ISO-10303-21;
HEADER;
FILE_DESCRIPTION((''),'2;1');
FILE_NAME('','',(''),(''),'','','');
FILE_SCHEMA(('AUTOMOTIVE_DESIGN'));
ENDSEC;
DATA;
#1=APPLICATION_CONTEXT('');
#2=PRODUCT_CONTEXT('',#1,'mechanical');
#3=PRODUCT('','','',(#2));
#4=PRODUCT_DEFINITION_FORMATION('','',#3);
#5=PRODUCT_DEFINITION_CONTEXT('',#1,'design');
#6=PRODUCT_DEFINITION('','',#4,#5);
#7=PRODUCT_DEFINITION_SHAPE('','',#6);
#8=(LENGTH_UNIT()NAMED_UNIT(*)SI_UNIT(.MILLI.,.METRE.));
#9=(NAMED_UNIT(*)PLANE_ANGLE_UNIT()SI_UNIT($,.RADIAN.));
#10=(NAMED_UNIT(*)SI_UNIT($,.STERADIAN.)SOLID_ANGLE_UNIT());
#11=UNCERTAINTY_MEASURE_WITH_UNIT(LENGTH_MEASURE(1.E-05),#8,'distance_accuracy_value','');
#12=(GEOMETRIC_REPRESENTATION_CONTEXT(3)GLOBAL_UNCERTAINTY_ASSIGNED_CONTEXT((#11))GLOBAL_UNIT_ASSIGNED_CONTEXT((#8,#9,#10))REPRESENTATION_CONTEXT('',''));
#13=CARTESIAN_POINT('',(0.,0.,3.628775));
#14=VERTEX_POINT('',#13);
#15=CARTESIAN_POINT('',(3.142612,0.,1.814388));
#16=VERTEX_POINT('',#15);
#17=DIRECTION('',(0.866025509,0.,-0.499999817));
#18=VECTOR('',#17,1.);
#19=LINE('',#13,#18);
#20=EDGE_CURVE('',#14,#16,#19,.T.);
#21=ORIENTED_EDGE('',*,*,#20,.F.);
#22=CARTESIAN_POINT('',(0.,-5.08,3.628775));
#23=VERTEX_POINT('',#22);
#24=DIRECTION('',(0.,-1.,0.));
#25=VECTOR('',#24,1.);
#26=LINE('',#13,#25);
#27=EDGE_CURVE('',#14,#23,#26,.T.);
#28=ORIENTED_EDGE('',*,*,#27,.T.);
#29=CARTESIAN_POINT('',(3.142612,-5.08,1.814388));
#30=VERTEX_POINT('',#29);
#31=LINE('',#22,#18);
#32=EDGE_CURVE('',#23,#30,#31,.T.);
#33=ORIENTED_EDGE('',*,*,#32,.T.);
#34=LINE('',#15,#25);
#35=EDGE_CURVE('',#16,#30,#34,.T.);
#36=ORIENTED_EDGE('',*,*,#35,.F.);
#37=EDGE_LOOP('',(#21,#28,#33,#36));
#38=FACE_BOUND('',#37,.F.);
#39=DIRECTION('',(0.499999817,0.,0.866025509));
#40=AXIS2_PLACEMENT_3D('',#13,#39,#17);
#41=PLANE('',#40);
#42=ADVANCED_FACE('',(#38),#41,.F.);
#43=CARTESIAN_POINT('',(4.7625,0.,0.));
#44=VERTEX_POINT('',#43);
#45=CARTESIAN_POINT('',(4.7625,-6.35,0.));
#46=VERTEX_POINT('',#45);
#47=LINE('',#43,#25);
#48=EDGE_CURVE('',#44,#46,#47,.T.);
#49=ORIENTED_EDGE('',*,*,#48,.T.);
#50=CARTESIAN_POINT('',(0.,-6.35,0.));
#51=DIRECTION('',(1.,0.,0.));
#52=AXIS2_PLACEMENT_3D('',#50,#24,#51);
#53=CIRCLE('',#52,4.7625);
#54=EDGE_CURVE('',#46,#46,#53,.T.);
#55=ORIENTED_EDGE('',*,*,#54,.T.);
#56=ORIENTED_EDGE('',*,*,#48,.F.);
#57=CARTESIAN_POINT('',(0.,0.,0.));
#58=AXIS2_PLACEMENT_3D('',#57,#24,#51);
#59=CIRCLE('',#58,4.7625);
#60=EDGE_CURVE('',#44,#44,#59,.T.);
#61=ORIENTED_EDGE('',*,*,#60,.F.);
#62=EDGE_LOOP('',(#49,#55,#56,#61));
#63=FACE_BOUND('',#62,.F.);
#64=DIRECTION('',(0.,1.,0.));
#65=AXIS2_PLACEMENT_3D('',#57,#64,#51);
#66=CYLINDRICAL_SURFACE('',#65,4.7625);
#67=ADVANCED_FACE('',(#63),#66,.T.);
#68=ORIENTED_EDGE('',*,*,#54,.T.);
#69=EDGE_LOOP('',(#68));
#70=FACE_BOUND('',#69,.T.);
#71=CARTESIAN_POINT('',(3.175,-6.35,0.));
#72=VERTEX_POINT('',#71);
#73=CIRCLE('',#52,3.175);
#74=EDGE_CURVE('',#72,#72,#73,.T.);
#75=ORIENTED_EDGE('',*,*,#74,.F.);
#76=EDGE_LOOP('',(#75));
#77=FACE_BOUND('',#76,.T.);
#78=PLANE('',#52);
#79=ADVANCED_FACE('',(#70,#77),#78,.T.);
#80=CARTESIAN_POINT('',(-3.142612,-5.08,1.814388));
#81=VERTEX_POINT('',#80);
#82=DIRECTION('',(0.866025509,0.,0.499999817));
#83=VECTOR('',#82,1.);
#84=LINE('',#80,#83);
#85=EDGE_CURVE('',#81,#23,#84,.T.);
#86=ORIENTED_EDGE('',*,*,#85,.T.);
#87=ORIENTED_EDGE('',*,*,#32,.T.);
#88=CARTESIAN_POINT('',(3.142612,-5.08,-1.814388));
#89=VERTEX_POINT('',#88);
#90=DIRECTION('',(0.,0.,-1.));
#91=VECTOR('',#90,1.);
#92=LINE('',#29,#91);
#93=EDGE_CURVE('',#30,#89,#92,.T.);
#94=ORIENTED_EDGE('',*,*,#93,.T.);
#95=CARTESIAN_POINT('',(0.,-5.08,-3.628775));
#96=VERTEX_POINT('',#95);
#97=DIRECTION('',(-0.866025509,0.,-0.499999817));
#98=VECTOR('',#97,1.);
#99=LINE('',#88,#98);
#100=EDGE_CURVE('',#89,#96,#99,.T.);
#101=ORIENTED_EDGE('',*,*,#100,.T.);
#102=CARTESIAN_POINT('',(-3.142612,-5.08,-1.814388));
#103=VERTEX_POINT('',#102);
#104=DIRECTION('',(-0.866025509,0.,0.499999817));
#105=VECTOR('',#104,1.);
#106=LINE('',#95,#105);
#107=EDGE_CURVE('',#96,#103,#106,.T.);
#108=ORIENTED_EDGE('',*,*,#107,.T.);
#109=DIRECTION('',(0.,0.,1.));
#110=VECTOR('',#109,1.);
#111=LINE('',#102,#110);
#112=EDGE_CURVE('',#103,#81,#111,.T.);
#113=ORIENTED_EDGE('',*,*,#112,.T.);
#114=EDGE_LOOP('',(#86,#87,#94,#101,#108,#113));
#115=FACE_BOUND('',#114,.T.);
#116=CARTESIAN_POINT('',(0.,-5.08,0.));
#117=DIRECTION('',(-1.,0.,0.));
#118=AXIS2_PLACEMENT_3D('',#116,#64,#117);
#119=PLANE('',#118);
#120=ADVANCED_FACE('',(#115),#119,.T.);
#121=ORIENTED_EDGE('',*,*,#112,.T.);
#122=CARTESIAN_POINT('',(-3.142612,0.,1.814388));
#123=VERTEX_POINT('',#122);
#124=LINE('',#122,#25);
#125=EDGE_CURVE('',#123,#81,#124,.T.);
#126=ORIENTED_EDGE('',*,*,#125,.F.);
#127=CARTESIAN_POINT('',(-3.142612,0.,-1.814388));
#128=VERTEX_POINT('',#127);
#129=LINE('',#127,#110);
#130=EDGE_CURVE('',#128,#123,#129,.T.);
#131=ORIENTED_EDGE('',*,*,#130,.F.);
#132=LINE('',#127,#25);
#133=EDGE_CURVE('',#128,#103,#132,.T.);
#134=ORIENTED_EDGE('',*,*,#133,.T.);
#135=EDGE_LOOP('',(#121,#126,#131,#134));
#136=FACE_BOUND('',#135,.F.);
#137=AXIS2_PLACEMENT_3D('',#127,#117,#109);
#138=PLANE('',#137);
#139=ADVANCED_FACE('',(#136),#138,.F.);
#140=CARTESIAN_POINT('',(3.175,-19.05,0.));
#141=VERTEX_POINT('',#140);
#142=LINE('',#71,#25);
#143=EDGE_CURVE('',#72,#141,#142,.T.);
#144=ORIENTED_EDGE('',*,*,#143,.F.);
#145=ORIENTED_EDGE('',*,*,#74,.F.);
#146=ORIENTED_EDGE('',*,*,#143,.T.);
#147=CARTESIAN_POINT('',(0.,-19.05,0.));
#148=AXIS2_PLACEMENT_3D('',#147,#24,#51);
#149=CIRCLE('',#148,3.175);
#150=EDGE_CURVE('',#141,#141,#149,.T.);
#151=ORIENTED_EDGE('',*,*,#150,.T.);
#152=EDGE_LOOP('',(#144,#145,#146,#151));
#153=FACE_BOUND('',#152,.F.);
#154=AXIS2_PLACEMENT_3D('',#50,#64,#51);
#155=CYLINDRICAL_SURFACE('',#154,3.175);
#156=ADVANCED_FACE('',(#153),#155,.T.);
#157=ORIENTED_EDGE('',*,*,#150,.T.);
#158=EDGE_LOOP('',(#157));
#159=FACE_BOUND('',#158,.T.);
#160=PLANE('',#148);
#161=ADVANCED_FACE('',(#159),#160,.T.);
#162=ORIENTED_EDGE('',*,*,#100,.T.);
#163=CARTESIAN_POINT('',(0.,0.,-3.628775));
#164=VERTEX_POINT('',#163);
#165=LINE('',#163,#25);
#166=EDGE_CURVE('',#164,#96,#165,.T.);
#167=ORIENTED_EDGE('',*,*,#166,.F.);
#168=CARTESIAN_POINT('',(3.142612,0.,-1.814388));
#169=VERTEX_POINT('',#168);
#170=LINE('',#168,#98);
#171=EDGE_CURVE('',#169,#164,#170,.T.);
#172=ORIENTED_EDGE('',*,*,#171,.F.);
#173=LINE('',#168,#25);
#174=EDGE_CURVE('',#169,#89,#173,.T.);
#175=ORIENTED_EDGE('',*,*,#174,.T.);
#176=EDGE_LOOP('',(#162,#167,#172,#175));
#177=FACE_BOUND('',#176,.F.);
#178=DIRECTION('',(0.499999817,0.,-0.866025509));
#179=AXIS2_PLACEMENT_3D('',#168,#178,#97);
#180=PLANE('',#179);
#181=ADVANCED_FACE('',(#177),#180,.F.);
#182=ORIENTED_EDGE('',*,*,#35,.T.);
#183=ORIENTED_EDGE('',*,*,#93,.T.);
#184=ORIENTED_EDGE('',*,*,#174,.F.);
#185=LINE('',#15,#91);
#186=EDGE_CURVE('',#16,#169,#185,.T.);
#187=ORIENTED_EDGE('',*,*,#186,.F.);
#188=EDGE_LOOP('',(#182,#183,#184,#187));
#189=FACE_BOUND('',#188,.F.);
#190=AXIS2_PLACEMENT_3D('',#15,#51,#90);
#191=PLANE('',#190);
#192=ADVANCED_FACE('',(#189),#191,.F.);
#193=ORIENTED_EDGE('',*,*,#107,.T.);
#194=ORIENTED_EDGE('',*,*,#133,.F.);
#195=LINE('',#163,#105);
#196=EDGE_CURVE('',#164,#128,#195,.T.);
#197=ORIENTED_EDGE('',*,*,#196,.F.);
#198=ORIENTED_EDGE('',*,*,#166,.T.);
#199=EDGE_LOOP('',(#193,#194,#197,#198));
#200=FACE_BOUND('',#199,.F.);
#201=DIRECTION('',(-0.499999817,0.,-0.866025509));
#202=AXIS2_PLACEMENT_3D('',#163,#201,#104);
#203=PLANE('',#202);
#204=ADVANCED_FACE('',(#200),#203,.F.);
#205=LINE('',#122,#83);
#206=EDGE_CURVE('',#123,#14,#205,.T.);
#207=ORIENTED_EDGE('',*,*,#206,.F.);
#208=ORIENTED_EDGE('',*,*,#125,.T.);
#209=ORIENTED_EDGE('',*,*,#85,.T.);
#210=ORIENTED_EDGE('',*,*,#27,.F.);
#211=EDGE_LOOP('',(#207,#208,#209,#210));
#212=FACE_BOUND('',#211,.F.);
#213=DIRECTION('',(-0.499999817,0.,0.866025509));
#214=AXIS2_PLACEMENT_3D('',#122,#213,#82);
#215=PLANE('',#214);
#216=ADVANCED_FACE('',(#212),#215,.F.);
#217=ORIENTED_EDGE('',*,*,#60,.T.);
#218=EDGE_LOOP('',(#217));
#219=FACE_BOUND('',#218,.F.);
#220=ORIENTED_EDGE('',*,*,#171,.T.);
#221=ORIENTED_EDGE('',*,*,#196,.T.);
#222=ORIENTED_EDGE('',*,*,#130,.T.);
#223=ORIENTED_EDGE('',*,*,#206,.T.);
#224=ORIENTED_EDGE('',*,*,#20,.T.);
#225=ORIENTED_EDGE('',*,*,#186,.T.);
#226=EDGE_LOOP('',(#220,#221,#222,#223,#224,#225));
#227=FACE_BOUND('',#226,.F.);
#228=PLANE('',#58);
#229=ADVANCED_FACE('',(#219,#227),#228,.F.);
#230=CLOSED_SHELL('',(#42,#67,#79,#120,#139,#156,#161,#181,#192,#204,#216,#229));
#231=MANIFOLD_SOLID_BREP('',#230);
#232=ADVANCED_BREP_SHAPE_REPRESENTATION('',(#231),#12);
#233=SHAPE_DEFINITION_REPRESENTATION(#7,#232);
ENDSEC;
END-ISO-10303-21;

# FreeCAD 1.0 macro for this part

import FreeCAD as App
import Part
import Sketcher
from FreeCAD import Vector
Q = App.Units.Quantity


def add_polygon(sketch, points):
    """Adds a closed chain of lines whose ends are joined by coincident constraints."""
    first, n = sketch.GeometryCount, len(points)
    for a, b in zip(points, points[1:] + points[:1]):
        sketch.addGeometry(Part.LineSegment(App.Vector(*a, 0), App.Vector(*b, 0)), False)
    for i in range(n):
        sketch.addConstraint(Sketcher.Constraint("Coincident", first + i, 2, first + (i + 1) % n, 1))

doc = App.newDocument("Part")
body = doc.addObject("PartDesign::Body", "Body")

# Sketch on XZ plane
sketch1 = body.newObject("Sketcher::SketchObject", "Sketch")
sketch1.AttachmentSupport = (doc.getObject("XZ_Plane"), [""])
sketch1.MapMode = "FlatFace"
sketch1.addGeometry(Part.Circle(Vector(0, 0, 0), Vector(0, 0, 1), 4.8), False)
sketch1.addConstraint(Sketcher.Constraint("Coincident", 0, 3, -1, 1))
sketch1.addConstraint(Sketcher.Constraint("Diameter", 0, Q("0.375 in")))
pad1 = body.newObject("PartDesign::Pad", "Pad")
pad1.Profile = sketch1
pad1.Length = Q("0.25 in")

# Sketch on XZ plane
sketch2 = body.newObject("Sketcher::SketchObject", "Sketch001")
sketch2.AttachmentSupport = (doc.getObject("XZ_Plane"), [""])
sketch2.MapMode = "FlatFace"
sketch2.AttachmentOffset = App.Placement(Vector(0, 0, 0.25 * 25.4), App.Rotation())
sketch2.addGeometry(Part.Circle(Vector(0, 0, 0), Vector(0, 0, 1), 3.2), False)
sketch2.addConstraint(Sketcher.Constraint("Coincident", 0, 3, -1, 1))
sketch2.addConstraint(Sketcher.Constraint("Diameter", 0, Q("0.25 in")))
pad2 = body.newObject("PartDesign::Pad", "Pad001")
pad2.Profile = sketch2
pad2.Length = Q("0.5 in")

# Sketch on XZ plane
sketch3 = body.newObject("Sketcher::SketchObject", "Sketch002")
sketch3.AttachmentSupport = (doc.getObject("XZ_Plane"), [""])
sketch3.MapMode = "FlatFace"
add_polygon(sketch3, [(-3.1, -1.8), (-3.1, 1.8), (0, 3.6), (3.1, 1.8), (3.1, -1.8), (0, -3.6)])  # lines 0-5
sketch3.addConstraint(Sketcher.Constraint("Vertical", 0))
sketch3.addConstraint(Sketcher.Constraint("Vertical", 3))
sketch3.addConstraint(Sketcher.Constraint("Symmetric", 0, 2, 3, 2, -1, 1))
sketch3.addConstraint(Sketcher.Constraint("Symmetric", 1, 2, 4, 2, -1, 1))
sketch3.addConstraint(Sketcher.Constraint("PointOnObject", 1, 2, -2))
sketch3.addConstraint(Sketcher.Constraint("Parallel", 2, 5))
sketch3.addConstraint(Sketcher.Constraint("Horizontal", 0, 2, 2, 2))
sketch3.addConstraint(Sketcher.Constraint("Angle", 1, Q("29.999988 deg")))
sketch3.addConstraint(Sketcher.Constraint("DistanceY", 0, 1, 0, 2, 3.628776))
sketch3.addConstraint(Sketcher.Constraint("DistanceY", 4, 2, 1, 2, 7.25755))
pocket1 = body.newObject("PartDesign::Pocket", "Pocket")
pocket1.Profile = sketch3
pocket1.Length = Q("0.2 in")
pocket1.Reversed = True

doc.recompute()
